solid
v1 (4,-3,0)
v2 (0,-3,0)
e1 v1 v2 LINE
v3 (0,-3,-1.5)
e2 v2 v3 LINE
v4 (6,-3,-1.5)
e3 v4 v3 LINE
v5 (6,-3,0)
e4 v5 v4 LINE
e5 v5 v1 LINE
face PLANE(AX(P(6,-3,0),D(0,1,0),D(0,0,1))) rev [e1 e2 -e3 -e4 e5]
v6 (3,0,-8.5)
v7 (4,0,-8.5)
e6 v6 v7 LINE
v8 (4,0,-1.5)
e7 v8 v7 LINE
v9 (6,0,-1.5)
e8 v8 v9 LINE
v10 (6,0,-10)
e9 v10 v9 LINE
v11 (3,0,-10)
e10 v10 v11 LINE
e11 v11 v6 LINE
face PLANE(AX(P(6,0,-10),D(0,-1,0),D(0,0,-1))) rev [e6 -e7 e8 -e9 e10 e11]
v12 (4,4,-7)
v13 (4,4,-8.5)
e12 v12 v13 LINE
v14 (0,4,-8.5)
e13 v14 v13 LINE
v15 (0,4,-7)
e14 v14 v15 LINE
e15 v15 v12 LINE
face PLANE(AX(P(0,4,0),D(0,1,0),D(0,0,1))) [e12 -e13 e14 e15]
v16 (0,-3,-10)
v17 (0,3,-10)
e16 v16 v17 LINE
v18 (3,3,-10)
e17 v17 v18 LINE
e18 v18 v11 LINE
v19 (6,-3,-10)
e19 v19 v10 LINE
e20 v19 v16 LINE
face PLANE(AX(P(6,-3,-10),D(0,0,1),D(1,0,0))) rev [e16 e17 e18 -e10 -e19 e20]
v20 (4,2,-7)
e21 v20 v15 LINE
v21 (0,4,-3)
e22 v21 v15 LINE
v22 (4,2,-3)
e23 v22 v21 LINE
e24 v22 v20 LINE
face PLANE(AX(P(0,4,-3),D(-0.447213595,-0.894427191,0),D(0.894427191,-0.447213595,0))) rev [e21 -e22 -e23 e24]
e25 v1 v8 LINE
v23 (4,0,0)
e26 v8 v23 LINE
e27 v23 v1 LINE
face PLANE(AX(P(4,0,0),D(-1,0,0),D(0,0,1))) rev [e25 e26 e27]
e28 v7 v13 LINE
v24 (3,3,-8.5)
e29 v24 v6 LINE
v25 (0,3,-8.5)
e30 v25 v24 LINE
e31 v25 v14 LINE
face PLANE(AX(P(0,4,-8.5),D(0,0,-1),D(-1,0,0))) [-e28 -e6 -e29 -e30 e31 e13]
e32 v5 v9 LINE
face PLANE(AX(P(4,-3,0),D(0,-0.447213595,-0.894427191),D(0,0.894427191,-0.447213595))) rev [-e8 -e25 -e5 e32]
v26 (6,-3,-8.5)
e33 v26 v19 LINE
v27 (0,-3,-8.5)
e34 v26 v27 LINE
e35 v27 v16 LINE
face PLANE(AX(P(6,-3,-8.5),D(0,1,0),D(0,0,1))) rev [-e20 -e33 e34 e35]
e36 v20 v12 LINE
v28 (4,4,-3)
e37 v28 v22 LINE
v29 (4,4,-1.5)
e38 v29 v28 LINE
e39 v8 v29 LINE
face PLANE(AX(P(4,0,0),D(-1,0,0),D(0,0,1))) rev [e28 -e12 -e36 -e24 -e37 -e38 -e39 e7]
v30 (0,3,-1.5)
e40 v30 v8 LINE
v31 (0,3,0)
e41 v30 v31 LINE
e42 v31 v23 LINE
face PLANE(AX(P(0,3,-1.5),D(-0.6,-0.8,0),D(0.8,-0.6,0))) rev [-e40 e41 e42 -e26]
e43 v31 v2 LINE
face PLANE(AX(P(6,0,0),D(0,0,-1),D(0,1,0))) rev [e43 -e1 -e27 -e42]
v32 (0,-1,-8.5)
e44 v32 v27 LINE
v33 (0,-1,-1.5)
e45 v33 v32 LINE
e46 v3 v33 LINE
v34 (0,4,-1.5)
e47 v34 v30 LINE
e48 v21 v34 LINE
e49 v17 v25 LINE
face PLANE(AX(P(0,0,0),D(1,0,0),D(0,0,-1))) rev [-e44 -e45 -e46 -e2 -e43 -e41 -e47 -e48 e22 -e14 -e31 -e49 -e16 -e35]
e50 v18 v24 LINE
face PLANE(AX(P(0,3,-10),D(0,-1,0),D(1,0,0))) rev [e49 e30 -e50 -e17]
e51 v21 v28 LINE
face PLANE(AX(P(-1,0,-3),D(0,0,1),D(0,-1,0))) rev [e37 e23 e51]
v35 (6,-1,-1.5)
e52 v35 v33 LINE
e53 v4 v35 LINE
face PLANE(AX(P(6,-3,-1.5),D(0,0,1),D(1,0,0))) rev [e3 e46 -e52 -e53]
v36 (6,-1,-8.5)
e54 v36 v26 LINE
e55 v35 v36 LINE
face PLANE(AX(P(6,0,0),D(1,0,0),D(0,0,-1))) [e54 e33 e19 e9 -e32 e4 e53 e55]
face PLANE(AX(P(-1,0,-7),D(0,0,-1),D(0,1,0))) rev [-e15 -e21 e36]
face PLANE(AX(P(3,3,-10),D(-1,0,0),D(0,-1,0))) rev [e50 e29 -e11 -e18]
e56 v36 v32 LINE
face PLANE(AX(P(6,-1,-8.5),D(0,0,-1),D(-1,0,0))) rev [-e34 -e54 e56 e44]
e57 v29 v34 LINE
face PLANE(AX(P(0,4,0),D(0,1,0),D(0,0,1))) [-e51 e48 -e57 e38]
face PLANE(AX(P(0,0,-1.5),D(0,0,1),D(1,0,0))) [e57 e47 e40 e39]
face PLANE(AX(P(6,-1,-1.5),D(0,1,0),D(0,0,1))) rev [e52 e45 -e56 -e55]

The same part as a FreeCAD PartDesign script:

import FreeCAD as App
import Part
import Sketcher

doc = App.newDocument("Part")
body = doc.addObject("PartDesign::Body", "Body")

# Sketch on YZ plane
sketch1 = body.newObject("Sketcher::SketchObject", "Sketch")
sketch1.AttachmentSupport = (doc.getObject("YZ_Plane"), [""])
sketch1.MapMode = "FlatFace"
sketch1.addGeometry(Part.LineSegment(App.Vector(0, 0, 0), App.Vector(-3, 0, 0)), False)
sketch1.addGeometry(Part.LineSegment(App.Vector(-3, 0, 0), App.Vector(-3, -1.5, 0)), False)
sketch1.addGeometry(Part.LineSegment(App.Vector(-3, -1.5, 0), App.Vector(-1, -1.5, 0)), False)
sketch1.addGeometry(Part.LineSegment(App.Vector(-1, -1.5, 0), App.Vector(-1, -8.5, 0)), False)
sketch1.addGeometry(Part.LineSegment(App.Vector(-1, -8.5, 0), App.Vector(-3, -8.5, 0)), False)
sketch1.addGeometry(Part.LineSegment(App.Vector(-3, -8.5, 0), App.Vector(-3, -10, 0)), False)
sketch1.addGeometry(Part.LineSegment(App.Vector(-3, -10, 0), App.Vector(0, -10, 0)), False)
sketch1.addGeometry(Part.LineSegment(App.Vector(0, -10, 0), App.Vector(0, 0, 0)), False)
sketch1.addConstraint(Sketcher.Constraint("Coincident", 0, 2, 1, 1))
sketch1.addConstraint(Sketcher.Constraint("Coincident", 1, 2, 2, 1))
sketch1.addConstraint(Sketcher.Constraint("Coincident", 2, 2, 3, 1))
sketch1.addConstraint(Sketcher.Constraint("Coincident", 3, 2, 4, 1))
sketch1.addConstraint(Sketcher.Constraint("Coincident", 4, 2, 5, 1))
sketch1.addConstraint(Sketcher.Constraint("Coincident", 5, 2, 6, 1))
sketch1.addConstraint(Sketcher.Constraint("Coincident", 6, 2, 7, 1))
sketch1.addConstraint(Sketcher.Constraint("Coincident", 7, 2, 0, 1))
sketch1.addConstraint(Sketcher.Constraint("Horizontal", 0))
sketch1.addConstraint(Sketcher.Constraint("Vertical", 1))
sketch1.addConstraint(Sketcher.Constraint("Horizontal", 2))
sketch1.addConstraint(Sketcher.Constraint("Vertical", 3))
sketch1.addConstraint(Sketcher.Constraint("Horizontal", 4))
sketch1.addConstraint(Sketcher.Constraint("Vertical", 5))
sketch1.addConstraint(Sketcher.Constraint("Horizontal", 6))
sketch1.addConstraint(Sketcher.Constraint("Vertical", 7))
sketch1.addConstraint(Sketcher.Constraint("Coincident", 7, 2, -1, 1))
sketch1.addConstraint(Sketcher.Constraint("Vertical", 1, 2, 4, 2))
sketch1.addConstraint(Sketcher.Constraint("Equal", 1, 5))
sketch1.addConstraint(Sketcher.Constraint("DistanceX", 0, 2, 0, 1, 3.0))
sketch1.addConstraint(Sketcher.Constraint("DistanceX", 2, 1, 2, 2, 2.0))
sketch1.addConstraint(Sketcher.Constraint("DistanceY", 3, 2, 3, 1, 7.0))
sketch1.addConstraint(Sketcher.Constraint("DistanceY", 7, 1, 7, 2, 10.0))
pad1 = body.newObject("PartDesign::Pad", "Pad")
pad1.Profile = sketch1
pad1.Length = 6

# Sketch on YZ plane
sketch2 = body.newObject("Sketcher::SketchObject", "Sketch001")
sketch2.AttachmentSupport = (doc.getObject("YZ_Plane"), [""])
sketch2.MapMode = "FlatFace"
sketch2.AttachmentOffset = App.Placement(App.Vector(0, 0, 6), App.Rotation())
sketch2.addGeometry(Part.LineSegment(App.Vector(-3, 0, 0), App.Vector(0, -1.5, 0)), False)
sketch2.addGeometry(Part.LineSegment(App.Vector(0, -1.5, 0), App.Vector(0, 0, 0)), False)
sketch2.addGeometry(Part.LineSegment(App.Vector(0, 0, 0), App.Vector(-3, 0, 0)), False)
sketch2.addConstraint(Sketcher.Constraint("Coincident", 0, 2, 1, 1))
sketch2.addConstraint(Sketcher.Constraint("Coincident", 1, 2, 2, 1))
sketch2.addConstraint(Sketcher.Constraint("Coincident", 2, 2, 0, 1))
sketch2.addConstraint(Sketcher.Constraint("Vertical", 1))
sketch2.addConstraint(Sketcher.Constraint("Horizontal", 2))
sketch2.addConstraint(Sketcher.Constraint("Coincident", 1, 2, -1, 1))
sketch2.addConstraint(Sketcher.Constraint("DistanceX", 2, 2, 2, 1, 3.0))
sketch2.addConstraint(Sketcher.Constraint("DistanceY", 1, 1, 1, 2, 1.5))
pocket1 = body.newObject("PartDesign::Pocket", "Pocket")
pocket1.Profile = sketch2
pocket1.Length = 2

# Sketch on XZ plane
sketch3 = body.newObject("Sketcher::SketchObject", "Sketch002")
sketch3.AttachmentSupport = (doc.getObject("XZ_Plane"), [""])
sketch3.MapMode = "FlatFace"
sketch3.addGeometry(Part.LineSegment(App.Vector(0, -8, 0), App.Vector(0, 0, 0)), False)
sketch3.addGeometry(Part.LineSegment(App.Vector(0, 0, 0), App.Vector(4, 0, 0)), False)
sketch3.addGeometry(Part.LineSegment(App.Vector(4, 0, 0), App.Vector(4, -8, 0)), False)
sketch3.addGeometry(Part.LineSegment(App.Vector(4, -8, 0), App.Vector(0, -8, 0)), False)
sketch3.addConstraint(Sketcher.Constraint("Coincident", 0, 2, 1, 1))
sketch3.addConstraint(Sketcher.Constraint("Coincident", 1, 2, 2, 1))
sketch3.addConstraint(Sketcher.Constraint("Coincident", 2, 2, 3, 1))
sketch3.addConstraint(Sketcher.Constraint("Coincident", 3, 2, 0, 1))
sketch3.addConstraint(Sketcher.Constraint("Vertical", 0))
sketch3.addConstraint(Sketcher.Constraint("Horizontal", 1))
sketch3.addConstraint(Sketcher.Constraint("Vertical", 2))
sketch3.addConstraint(Sketcher.Constraint("Horizontal", 3))
sketch3.addConstraint(Sketcher.Constraint("Coincident", 0, 2, -1, 1))
sketch3.addConstraint(Sketcher.Constraint("DistanceX", 1, 1, 1, 2, 4.0))
sketch3.addConstraint(Sketcher.Constraint("DistanceY", 0, 1, 0, 2, 8.0))
pad2 = body.newObject("PartDesign::Pad", "Pad001")
pad2.Profile = sketch3
pad2.Length = 4
pad2.Reversed = True

# Sketch on XY plane
sketch4 = body.newObject("Sketcher::SketchObject", "Sketch003")
sketch4.AttachmentSupport = (doc.getObject("XY_Plane"), [""])
sketch4.MapMode = "FlatFace"
sketch4.addGeometry(Part.LineSegment(App.Vector(0, 3, 0), App.Vector(4, 0, 0)), False)
sketch4.addGeometry(Part.LineSegment(App.Vector(4, 0, 0), App.Vector(4, 4, 0)), False)
sketch4.addGeometry(Part.LineSegment(App.Vector(4, 4, 0), App.Vector(0, 4, 0)), False)
sketch4.addGeometry(Part.LineSegment(App.Vector(0, 4, 0), App.Vector(0, 3, 0)), False)
sketch4.addConstraint(Sketcher.Constraint("Coincident", 0, 2, 1, 1))
sketch4.addConstraint(Sketcher.Constraint("Coincident", 1, 2, 2, 1))
sketch4.addConstraint(Sketcher.Constraint("Coincident", 2, 2, 3, 1))
sketch4.addConstraint(Sketcher.Constraint("Coincident", 3, 2, 0, 1))
sketch4.addConstraint(Sketcher.Constraint("Vertical", 1))
sketch4.addConstraint(Sketcher.Constraint("Horizontal", 2))
sketch4.addConstraint(Sketcher.Constraint("Vertical", 3))
sketch4.addConstraint(Sketcher.Constraint("PointOnObject", 0, 2, -1))
sketch4.addConstraint(Sketcher.Constraint("PointOnObject", 2, 2, -2))
sketch4.addConstraint(Sketcher.Constraint("Equal", 2, 1))
sketch4.addConstraint(Sketcher.Constraint("DistanceX", 2, 2, 2, 1, 4.0))
sketch4.addConstraint(Sketcher.Constraint("DistanceY", 3, 2, 3, 1, 1.0))
pocket2 = body.newObject("PartDesign::Pocket", "Pocket001")
pocket2.Profile = sketch4
pocket2.Length = 1.5

# Sketch on YZ plane
sketch5 = body.newObject("Sketcher::SketchObject", "Sketch004")
sketch5.AttachmentSupport = (doc.getObject("YZ_Plane"), [""])
sketch5.MapMode = "FlatFace"
sketch5.AttachmentOffset = App.Placement(App.Vector(0, 0, 4), App.Rotation())
sketch5.addGeometry(Part.LineSegment(App.Vector(4, -3, 0), App.Vector(2, -3, 0)), False)
sketch5.addGeometry(Part.LineSegment(App.Vector(2, -3, 0), App.Vector(2, -7, 0)), False)
sketch5.addGeometry(Part.LineSegment(App.Vector(2, -7, 0), App.Vector(4, -7, 0)), False)
sketch5.addGeometry(Part.LineSegment(App.Vector(4, -7, 0), App.Vector(4, -3, 0)), False)
sketch5.addConstraint(Sketcher.Constraint("Coincident", 0, 2, 1, 1))
sketch5.addConstraint(Sketcher.Constraint("Coincident", 1, 2, 2, 1))
sketch5.addConstraint(Sketcher.Constraint("Coincident", 2, 2, 3, 1))
sketch5.addConstraint(Sketcher.Constraint("Coincident", 3, 2, 0, 1))
sketch5.addConstraint(Sketcher.Constraint("Horizontal", 0))
sketch5.addConstraint(Sketcher.Constraint("Vertical", 1))
sketch5.addConstraint(Sketcher.Constraint("Horizontal", 2))
sketch5.addConstraint(Sketcher.Constraint("Vertical", 3))
sketch5.addConstraint(Sketcher.Constraint("DistanceX", 0, 2, 0, 1, 2.0))
sketch5.addConstraint(Sketcher.Constraint("DistanceY", 1, 2, 1, 1, 4.0))
sketch5.addConstraint(Sketcher.Constraint("DistanceX", -1, 1, 0, 2, 2.0))
sketch5.addConstraint(Sketcher.Constraint("DistanceY", 0, 2, -1, 1, 3.0))
pocket3 = body.newObject("PartDesign::Pocket", "Pocket002")
pocket3.Profile = sketch5
pocket3.Length = 5

# Sketch on YZ plane
sketch6 = body.newObject("Sketcher::SketchObject", "Sketch005")
sketch6.AttachmentSupport = (doc.getObject("YZ_Plane"), [""])
sketch6.MapMode = "FlatFace"
sketch6.AttachmentOffset = App.Placement(App.Vector(0, 0, 4), App.Rotation())
sketch6.addGeometry(Part.LineSegment(App.Vector(4, -7, 0), App.Vector(0, -7, 0)), False)
sketch6.addGeometry(Part.LineSegment(App.Vector(0, -7, 0), App.Vector(0, -8.5, 0)), False)
sketch6.addGeometry(Part.LineSegment(App.Vector(0, -8.5, 0), App.Vector(4, -8.5, 0)), False)
sketch6.addGeometry(Part.LineSegment(App.Vector(4, -8.5, 0), App.Vector(4, -7, 0)), False)
sketch6.addConstraint(Sketcher.Constraint("Coincident", 0, 2, 1, 1))
sketch6.addConstraint(Sketcher.Constraint("Coincident", 1, 2, 2, 1))
sketch6.addConstraint(Sketcher.Constraint("Coincident", 2, 2, 3, 1))
sketch6.addConstraint(Sketcher.Constraint("Coincident", 3, 2, 0, 1))
sketch6.addConstraint(Sketcher.Constraint("Horizontal", 0))
sketch6.addConstraint(Sketcher.Constraint("Vertical", 1))
sketch6.addConstraint(Sketcher.Constraint("Horizontal", 2))
sketch6.addConstraint(Sketcher.Constraint("Vertical", 3))
sketch6.addConstraint(Sketcher.Constraint("PointOnObject", 0, 2, -2))
sketch6.addConstraint(Sketcher.Constraint("DistanceX", 0, 2, 0, 1, 4.0))
sketch6.addConstraint(Sketcher.Constraint("DistanceY", 1, 2, 1, 1, 1.5))
sketch6.addConstraint(Sketcher.Constraint("DistanceY", 0, 2, -1, 1, 7.0))
pad3 = body.newObject("PartDesign::Pad", "Pad002")
pad3.Profile = sketch6
pad3.Length = 4
pad3.Reversed = True

# Sketch on XY plane
sketch7 = body.newObject("Sketcher::SketchObject", "Sketch006")
sketch7.AttachmentSupport = (doc.getObject("XY_Plane"), [""])
sketch7.MapMode = "FlatFace"
sketch7.AttachmentOffset = App.Placement(App.Vector(0, 0, -7), App.Rotation())
sketch7.addGeometry(Part.LineSegment(App.Vector(4, 2, 0), App.Vector(0, 4, 0)), False)
sketch7.addGeometry(Part.LineSegment(App.Vector(0, 4, 0), App.Vector(0, 2, 0)), False)
sketch7.addGeometry(Part.LineSegment(App.Vector(0, 2, 0), App.Vector(4, 2, 0)), False)
sketch7.addConstraint(Sketcher.Constraint("Coincident", 0, 2, 1, 1))
sketch7.addConstraint(Sketcher.Constraint("Coincident", 1, 2, 2, 1))
sketch7.addConstraint(Sketcher.Constraint("Coincident", 2, 2, 0, 1))
sketch7.addConstraint(Sketcher.Constraint("Vertical", 1))
sketch7.addConstraint(Sketcher.Constraint("Horizontal", 2))
sketch7.addConstraint(Sketcher.Constraint("PointOnObject", 0, 2, -2))
sketch7.addConstraint(Sketcher.Constraint("DistanceX", 2, 1, 2, 2, 4.0))
sketch7.addConstraint(Sketcher.Constraint("DistanceY", 1, 2, 1, 1, 2.0))
sketch7.addConstraint(Sketcher.Constraint("DistanceY", -1, 1, 0, 2, 4.0))
pad4 = body.newObject("PartDesign::Pad", "Pad003")
pad4.Profile = sketch7
pad4.Length = 4

# Sketch on XY plane
sketch8 = body.newObject("Sketcher::SketchObject", "Sketch007")
sketch8.AttachmentSupport = (doc.getObject("XY_Plane"), [""])
sketch8.MapMode = "FlatFace"
sketch8.AttachmentOffset = App.Placement(App.Vector(0, 0, -8.5), App.Rotation())
sketch8.addGeometry(Part.LineSegment(App.Vector(3, 3, 0), App.Vector(3, 0, 0)), False)
sketch8.addGeometry(Part.LineSegment(App.Vector(3, 0, 0), App.Vector(0, 0, 0)), False)
sketch8.addGeometry(Part.LineSegment(App.Vector(0, 0, 0), App.Vector(0, 3, 0)), False)
sketch8.addGeometry(Part.LineSegment(App.Vector(0, 3, 0), App.Vector(3, 3, 0)), False)
sketch8.addConstraint(Sketcher.Constraint("Coincident", 0, 2, 1, 1))
sketch8.addConstraint(Sketcher.Constraint("Coincident", 1, 2, 2, 1))
sketch8.addConstraint(Sketcher.Constraint("Coincident", 2, 2, 3, 1))
sketch8.addConstraint(Sketcher.Constraint("Coincident", 3, 2, 0, 1))
sketch8.addConstraint(Sketcher.Constraint("Vertical", 0))
sketch8.addConstraint(Sketcher.Constraint("Horizontal", 1))
sketch8.addConstraint(Sketcher.Constraint("Vertical", 2))
sketch8.addConstraint(Sketcher.Constraint("Horizontal", 3))
sketch8.addConstraint(Sketcher.Constraint("Coincident", 1, 2, -1, 1))
sketch8.addConstraint(Sketcher.Constraint("Equal", 3, 0))
sketch8.addConstraint(Sketcher.Constraint("DistanceX", 1, 2, 1, 1, 3.0))
pad5 = body.newObject("PartDesign::Pad", "Pad004")
pad5.Profile = sketch8
pad5.Length = 1.5
pad5.Reversed = True

doc.recompute()
